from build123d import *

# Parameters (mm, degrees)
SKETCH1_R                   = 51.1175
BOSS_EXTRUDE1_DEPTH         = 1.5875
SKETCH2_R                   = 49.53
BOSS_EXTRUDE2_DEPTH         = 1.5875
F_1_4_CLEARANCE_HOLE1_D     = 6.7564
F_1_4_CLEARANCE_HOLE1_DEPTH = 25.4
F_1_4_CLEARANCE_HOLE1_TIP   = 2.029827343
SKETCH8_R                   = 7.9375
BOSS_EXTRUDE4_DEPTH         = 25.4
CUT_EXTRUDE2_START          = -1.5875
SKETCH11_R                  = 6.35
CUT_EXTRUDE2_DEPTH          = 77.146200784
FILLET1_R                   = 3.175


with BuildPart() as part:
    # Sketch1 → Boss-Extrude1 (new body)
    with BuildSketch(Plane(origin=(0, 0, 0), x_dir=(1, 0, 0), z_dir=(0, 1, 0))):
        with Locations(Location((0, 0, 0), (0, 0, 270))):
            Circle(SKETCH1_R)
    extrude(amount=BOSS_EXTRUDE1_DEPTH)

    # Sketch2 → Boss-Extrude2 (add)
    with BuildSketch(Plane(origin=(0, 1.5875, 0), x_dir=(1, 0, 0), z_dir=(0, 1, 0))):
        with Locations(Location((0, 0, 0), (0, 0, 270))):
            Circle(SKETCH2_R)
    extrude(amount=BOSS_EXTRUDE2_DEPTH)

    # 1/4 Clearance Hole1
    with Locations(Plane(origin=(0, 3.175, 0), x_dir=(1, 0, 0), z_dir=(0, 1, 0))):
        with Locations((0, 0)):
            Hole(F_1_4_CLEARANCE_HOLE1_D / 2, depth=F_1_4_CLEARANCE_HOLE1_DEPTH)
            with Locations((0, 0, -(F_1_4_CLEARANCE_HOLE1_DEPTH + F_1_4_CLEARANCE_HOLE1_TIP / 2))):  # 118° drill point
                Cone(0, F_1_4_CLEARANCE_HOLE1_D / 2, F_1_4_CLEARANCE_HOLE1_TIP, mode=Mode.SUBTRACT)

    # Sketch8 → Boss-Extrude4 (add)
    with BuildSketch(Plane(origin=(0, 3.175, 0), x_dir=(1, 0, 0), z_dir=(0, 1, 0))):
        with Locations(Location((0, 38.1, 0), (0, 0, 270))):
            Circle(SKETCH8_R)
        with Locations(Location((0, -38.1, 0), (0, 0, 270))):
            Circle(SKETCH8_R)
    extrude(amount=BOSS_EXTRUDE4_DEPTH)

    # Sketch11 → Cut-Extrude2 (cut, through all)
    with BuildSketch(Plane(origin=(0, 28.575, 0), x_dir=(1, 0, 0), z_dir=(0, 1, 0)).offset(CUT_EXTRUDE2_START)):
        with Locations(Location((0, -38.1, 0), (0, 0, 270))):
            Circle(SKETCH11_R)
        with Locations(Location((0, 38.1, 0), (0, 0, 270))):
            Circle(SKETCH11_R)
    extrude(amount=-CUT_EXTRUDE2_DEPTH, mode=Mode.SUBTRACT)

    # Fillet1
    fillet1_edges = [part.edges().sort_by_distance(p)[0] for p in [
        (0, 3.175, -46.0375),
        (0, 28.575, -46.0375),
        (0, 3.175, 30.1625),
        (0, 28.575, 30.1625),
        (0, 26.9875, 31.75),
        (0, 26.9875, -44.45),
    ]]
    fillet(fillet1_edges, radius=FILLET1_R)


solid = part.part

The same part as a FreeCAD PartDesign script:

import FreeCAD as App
import Part
import Sketcher
from FreeCAD import Vector
Q = App.Units.Quantity


def edges_at(feature, points):
    """Names of the edges that pass closest to the given points."""
    edges = feature.Shape.Edges
    near = lambda p: min(range(len(edges)), key=lambda i: edges[i].distToShape(Part.Vertex(*p))[0])
    return sorted({f"Edge{near(p) + 1}" for p in points})

doc = App.newDocument("Part")
params = doc.addObject("Spreadsheet::Sheet", "Params")
for row, (alias, value) in enumerate([
    ("sketch1_diameter", "4.025 in"),
    ("pad1_length", "0.0625 in"),
    ("sketch2_diameter", "3.9 in"),
    ("pad2_length", "0.0625 in"),
    ("sketch3_diameter", "0.266 in"),
    ("hole_diameter", "0.266 in"),
    ("hole_depth", "1 in"),
    ("sketch4_diameter", "0.625 in"),
    ("pad3_length", "1 in"),
    ("sketch5_diameter", "0.5 in"),
    ("fillet_radius", "0.125 in"),
], start=1):
    params.set(f"A{row}", alias)
    params.set(f"B{row}", "=" + value)
    params.setAlias(f"B{row}", alias)

body = doc.addObject("PartDesign::Body", "Body")

# Sketch on XZ plane
sketch1 = body.newObject("Sketcher::SketchObject", "Sketch")
sketch1.AttachmentSupport = (doc.getObject("XZ_Plane"), [""])
sketch1.MapMode = "FlatFace"
sketch1.addGeometry(Part.Circle(Vector(0, 0, 0), Vector(0, 0, 1), 51), False)
sketch1.addConstraint([
    Sketcher.Constraint("Coincident", 0, 3, -1, 1),
    Sketcher.Constraint("Diameter", 0, Q("4.025 in")),
])
sketch1.setExpression("Constraints[1]", "Params.sketch1_diameter")
pad1 = body.newObject("PartDesign::Pad", "Pad")
pad1.Profile = sketch1
pad1.setExpression("Length", "Params.pad1_length")
pad1.Reversed = True

# Sketch on XZ plane
sketch2 = body.newObject("Sketcher::SketchObject", "Sketch001")
sketch2.AttachmentSupport = (doc.getObject("XZ_Plane"), [""])
sketch2.MapMode = "FlatFace"
sketch2.AttachmentOffset = App.Placement(Vector(0, 0, -0.0625 * 25.4), App.Rotation())
sketch2.addGeometry(Part.Circle(Vector(0, 0, 0), Vector(0, 0, 1), 50), False)
sketch2.addConstraint([
    Sketcher.Constraint("Coincident", 0, 3, -1, 1),
    Sketcher.Constraint("Diameter", 0, Q("3.9 in")),
])
sketch2.setExpression("Constraints[1]", "Params.sketch2_diameter")
pad2 = body.newObject("PartDesign::Pad", "Pad001")
pad2.Profile = sketch2
pad2.setExpression("Length", "Params.pad2_length")
pad2.Reversed = True

# Sketch on XZ plane
sketch3 = body.newObject("Sketcher::SketchObject", "Sketch002")
sketch3.AttachmentSupport = (doc.getObject("XZ_Plane"), [""])
sketch3.MapMode = "FlatFace"
sketch3.AttachmentOffset = App.Placement(Vector(0, 0, -0.125 * 25.4), App.Rotation())
sketch3.addGeometry(Part.Circle(Vector(0, 0, 0), Vector(0, 0, 1), 3.4), False)
sketch3.addConstraint([
    Sketcher.Constraint("Coincident", 0, 3, -1, 1),
    Sketcher.Constraint("Diameter", 0, Q("0.266 in")),
])
sketch3.setExpression("Constraints[1]", "Params.sketch3_diameter")
doc.recompute()
hole = body.newObject("PartDesign::Hole", "Hole")
hole.Profile = sketch3
hole.ThreadType = "None"
hole.setExpression("Diameter", "Params.hole_diameter")
hole.DepthType = "Dimension"
hole.setExpression("Depth", "Params.hole_depth")
hole.DrillPoint = "Angled"
hole.DrillPointAngle = 118
hole.Reversed = True

# Sketch on XZ plane
sketch4 = body.newObject("Sketcher::SketchObject", "Sketch003")
sketch4.AttachmentSupport = (doc.getObject("XZ_Plane"), [""])
sketch4.MapMode = "FlatFace"
sketch4.AttachmentOffset = App.Placement(Vector(0, 0, -0.125 * 25.4), App.Rotation())
sketch4.addGeometry([
    Part.Circle(Vector(0, -38, 0), Vector(0, 0, 1), 8),
    Part.Circle(Vector(0, 38, 0), Vector(0, 0, 1), 8),
], False)
sketch4.addConstraint([
    Sketcher.Constraint("Equal", 0, 1),
    Sketcher.Constraint("Symmetric", 0, 3, 1, 3, -1, 1),
    Sketcher.Constraint("PointOnObject", 0, 3, -2),
    Sketcher.Constraint("Diameter", 0, Q("0.625 in")),
    Sketcher.Constraint("DistanceY", 0, 3, 1, 3, Q("3 in")),
])
sketch4.setExpression("Constraints[3]", "Params.sketch4_diameter")
pad3 = body.newObject("PartDesign::Pad", "Pad002")
pad3.Profile = sketch4
pad3.setExpression("Length", "Params.pad3_length")
pad3.Reversed = True

# Sketch on XZ plane
sketch5 = body.newObject("Sketcher::SketchObject", "Sketch004")
sketch5.AttachmentSupport = (doc.getObject("XZ_Plane"), [""])
sketch5.MapMode = "FlatFace"
sketch5.AttachmentOffset = App.Placement(Vector(0, 0, -1.0625 * 25.4), App.Rotation())
sketch5.addGeometry([
    Part.Circle(Vector(0, 38, 0), Vector(0, 0, 1), 6),
    Part.Circle(Vector(0, -38, 0), Vector(0, 0, 1), 6),
], False)
sketch5.addConstraint([
    Sketcher.Constraint("Equal", 0, 1),
    Sketcher.Constraint("Symmetric", 0, 3, 1, 3, -1, 1),
    Sketcher.Constraint("PointOnObject", 0, 3, -2),
    Sketcher.Constraint("Diameter", 0, Q("0.5 in")),
    Sketcher.Constraint("DistanceY", 1, 3, 0, 3, Q("3 in")),
])
sketch5.setExpression("Constraints[3]", "Params.sketch5_diameter")
pocket1 = body.newObject("PartDesign::Pocket", "Pocket")
pocket1.Profile = sketch5
pocket1.Type = "ThroughAll"
pocket1.Reversed = True
doc.recompute()

fillet = body.newObject("PartDesign::Fillet", "Fillet")
fillet.Base = (pocket1, edges_at(pocket1, [
    (0, 3.175, -46.038),
    (0, 28.575, -46.038),
    (0, 3.175, 30.163),
    (0, 28.575, 30.163),
    (0, 26.988, 31.75),
    (0, 26.988, -44.45),
]))
fillet.setExpression("Radius", "Params.fillet_radius")

doc.recompute()
